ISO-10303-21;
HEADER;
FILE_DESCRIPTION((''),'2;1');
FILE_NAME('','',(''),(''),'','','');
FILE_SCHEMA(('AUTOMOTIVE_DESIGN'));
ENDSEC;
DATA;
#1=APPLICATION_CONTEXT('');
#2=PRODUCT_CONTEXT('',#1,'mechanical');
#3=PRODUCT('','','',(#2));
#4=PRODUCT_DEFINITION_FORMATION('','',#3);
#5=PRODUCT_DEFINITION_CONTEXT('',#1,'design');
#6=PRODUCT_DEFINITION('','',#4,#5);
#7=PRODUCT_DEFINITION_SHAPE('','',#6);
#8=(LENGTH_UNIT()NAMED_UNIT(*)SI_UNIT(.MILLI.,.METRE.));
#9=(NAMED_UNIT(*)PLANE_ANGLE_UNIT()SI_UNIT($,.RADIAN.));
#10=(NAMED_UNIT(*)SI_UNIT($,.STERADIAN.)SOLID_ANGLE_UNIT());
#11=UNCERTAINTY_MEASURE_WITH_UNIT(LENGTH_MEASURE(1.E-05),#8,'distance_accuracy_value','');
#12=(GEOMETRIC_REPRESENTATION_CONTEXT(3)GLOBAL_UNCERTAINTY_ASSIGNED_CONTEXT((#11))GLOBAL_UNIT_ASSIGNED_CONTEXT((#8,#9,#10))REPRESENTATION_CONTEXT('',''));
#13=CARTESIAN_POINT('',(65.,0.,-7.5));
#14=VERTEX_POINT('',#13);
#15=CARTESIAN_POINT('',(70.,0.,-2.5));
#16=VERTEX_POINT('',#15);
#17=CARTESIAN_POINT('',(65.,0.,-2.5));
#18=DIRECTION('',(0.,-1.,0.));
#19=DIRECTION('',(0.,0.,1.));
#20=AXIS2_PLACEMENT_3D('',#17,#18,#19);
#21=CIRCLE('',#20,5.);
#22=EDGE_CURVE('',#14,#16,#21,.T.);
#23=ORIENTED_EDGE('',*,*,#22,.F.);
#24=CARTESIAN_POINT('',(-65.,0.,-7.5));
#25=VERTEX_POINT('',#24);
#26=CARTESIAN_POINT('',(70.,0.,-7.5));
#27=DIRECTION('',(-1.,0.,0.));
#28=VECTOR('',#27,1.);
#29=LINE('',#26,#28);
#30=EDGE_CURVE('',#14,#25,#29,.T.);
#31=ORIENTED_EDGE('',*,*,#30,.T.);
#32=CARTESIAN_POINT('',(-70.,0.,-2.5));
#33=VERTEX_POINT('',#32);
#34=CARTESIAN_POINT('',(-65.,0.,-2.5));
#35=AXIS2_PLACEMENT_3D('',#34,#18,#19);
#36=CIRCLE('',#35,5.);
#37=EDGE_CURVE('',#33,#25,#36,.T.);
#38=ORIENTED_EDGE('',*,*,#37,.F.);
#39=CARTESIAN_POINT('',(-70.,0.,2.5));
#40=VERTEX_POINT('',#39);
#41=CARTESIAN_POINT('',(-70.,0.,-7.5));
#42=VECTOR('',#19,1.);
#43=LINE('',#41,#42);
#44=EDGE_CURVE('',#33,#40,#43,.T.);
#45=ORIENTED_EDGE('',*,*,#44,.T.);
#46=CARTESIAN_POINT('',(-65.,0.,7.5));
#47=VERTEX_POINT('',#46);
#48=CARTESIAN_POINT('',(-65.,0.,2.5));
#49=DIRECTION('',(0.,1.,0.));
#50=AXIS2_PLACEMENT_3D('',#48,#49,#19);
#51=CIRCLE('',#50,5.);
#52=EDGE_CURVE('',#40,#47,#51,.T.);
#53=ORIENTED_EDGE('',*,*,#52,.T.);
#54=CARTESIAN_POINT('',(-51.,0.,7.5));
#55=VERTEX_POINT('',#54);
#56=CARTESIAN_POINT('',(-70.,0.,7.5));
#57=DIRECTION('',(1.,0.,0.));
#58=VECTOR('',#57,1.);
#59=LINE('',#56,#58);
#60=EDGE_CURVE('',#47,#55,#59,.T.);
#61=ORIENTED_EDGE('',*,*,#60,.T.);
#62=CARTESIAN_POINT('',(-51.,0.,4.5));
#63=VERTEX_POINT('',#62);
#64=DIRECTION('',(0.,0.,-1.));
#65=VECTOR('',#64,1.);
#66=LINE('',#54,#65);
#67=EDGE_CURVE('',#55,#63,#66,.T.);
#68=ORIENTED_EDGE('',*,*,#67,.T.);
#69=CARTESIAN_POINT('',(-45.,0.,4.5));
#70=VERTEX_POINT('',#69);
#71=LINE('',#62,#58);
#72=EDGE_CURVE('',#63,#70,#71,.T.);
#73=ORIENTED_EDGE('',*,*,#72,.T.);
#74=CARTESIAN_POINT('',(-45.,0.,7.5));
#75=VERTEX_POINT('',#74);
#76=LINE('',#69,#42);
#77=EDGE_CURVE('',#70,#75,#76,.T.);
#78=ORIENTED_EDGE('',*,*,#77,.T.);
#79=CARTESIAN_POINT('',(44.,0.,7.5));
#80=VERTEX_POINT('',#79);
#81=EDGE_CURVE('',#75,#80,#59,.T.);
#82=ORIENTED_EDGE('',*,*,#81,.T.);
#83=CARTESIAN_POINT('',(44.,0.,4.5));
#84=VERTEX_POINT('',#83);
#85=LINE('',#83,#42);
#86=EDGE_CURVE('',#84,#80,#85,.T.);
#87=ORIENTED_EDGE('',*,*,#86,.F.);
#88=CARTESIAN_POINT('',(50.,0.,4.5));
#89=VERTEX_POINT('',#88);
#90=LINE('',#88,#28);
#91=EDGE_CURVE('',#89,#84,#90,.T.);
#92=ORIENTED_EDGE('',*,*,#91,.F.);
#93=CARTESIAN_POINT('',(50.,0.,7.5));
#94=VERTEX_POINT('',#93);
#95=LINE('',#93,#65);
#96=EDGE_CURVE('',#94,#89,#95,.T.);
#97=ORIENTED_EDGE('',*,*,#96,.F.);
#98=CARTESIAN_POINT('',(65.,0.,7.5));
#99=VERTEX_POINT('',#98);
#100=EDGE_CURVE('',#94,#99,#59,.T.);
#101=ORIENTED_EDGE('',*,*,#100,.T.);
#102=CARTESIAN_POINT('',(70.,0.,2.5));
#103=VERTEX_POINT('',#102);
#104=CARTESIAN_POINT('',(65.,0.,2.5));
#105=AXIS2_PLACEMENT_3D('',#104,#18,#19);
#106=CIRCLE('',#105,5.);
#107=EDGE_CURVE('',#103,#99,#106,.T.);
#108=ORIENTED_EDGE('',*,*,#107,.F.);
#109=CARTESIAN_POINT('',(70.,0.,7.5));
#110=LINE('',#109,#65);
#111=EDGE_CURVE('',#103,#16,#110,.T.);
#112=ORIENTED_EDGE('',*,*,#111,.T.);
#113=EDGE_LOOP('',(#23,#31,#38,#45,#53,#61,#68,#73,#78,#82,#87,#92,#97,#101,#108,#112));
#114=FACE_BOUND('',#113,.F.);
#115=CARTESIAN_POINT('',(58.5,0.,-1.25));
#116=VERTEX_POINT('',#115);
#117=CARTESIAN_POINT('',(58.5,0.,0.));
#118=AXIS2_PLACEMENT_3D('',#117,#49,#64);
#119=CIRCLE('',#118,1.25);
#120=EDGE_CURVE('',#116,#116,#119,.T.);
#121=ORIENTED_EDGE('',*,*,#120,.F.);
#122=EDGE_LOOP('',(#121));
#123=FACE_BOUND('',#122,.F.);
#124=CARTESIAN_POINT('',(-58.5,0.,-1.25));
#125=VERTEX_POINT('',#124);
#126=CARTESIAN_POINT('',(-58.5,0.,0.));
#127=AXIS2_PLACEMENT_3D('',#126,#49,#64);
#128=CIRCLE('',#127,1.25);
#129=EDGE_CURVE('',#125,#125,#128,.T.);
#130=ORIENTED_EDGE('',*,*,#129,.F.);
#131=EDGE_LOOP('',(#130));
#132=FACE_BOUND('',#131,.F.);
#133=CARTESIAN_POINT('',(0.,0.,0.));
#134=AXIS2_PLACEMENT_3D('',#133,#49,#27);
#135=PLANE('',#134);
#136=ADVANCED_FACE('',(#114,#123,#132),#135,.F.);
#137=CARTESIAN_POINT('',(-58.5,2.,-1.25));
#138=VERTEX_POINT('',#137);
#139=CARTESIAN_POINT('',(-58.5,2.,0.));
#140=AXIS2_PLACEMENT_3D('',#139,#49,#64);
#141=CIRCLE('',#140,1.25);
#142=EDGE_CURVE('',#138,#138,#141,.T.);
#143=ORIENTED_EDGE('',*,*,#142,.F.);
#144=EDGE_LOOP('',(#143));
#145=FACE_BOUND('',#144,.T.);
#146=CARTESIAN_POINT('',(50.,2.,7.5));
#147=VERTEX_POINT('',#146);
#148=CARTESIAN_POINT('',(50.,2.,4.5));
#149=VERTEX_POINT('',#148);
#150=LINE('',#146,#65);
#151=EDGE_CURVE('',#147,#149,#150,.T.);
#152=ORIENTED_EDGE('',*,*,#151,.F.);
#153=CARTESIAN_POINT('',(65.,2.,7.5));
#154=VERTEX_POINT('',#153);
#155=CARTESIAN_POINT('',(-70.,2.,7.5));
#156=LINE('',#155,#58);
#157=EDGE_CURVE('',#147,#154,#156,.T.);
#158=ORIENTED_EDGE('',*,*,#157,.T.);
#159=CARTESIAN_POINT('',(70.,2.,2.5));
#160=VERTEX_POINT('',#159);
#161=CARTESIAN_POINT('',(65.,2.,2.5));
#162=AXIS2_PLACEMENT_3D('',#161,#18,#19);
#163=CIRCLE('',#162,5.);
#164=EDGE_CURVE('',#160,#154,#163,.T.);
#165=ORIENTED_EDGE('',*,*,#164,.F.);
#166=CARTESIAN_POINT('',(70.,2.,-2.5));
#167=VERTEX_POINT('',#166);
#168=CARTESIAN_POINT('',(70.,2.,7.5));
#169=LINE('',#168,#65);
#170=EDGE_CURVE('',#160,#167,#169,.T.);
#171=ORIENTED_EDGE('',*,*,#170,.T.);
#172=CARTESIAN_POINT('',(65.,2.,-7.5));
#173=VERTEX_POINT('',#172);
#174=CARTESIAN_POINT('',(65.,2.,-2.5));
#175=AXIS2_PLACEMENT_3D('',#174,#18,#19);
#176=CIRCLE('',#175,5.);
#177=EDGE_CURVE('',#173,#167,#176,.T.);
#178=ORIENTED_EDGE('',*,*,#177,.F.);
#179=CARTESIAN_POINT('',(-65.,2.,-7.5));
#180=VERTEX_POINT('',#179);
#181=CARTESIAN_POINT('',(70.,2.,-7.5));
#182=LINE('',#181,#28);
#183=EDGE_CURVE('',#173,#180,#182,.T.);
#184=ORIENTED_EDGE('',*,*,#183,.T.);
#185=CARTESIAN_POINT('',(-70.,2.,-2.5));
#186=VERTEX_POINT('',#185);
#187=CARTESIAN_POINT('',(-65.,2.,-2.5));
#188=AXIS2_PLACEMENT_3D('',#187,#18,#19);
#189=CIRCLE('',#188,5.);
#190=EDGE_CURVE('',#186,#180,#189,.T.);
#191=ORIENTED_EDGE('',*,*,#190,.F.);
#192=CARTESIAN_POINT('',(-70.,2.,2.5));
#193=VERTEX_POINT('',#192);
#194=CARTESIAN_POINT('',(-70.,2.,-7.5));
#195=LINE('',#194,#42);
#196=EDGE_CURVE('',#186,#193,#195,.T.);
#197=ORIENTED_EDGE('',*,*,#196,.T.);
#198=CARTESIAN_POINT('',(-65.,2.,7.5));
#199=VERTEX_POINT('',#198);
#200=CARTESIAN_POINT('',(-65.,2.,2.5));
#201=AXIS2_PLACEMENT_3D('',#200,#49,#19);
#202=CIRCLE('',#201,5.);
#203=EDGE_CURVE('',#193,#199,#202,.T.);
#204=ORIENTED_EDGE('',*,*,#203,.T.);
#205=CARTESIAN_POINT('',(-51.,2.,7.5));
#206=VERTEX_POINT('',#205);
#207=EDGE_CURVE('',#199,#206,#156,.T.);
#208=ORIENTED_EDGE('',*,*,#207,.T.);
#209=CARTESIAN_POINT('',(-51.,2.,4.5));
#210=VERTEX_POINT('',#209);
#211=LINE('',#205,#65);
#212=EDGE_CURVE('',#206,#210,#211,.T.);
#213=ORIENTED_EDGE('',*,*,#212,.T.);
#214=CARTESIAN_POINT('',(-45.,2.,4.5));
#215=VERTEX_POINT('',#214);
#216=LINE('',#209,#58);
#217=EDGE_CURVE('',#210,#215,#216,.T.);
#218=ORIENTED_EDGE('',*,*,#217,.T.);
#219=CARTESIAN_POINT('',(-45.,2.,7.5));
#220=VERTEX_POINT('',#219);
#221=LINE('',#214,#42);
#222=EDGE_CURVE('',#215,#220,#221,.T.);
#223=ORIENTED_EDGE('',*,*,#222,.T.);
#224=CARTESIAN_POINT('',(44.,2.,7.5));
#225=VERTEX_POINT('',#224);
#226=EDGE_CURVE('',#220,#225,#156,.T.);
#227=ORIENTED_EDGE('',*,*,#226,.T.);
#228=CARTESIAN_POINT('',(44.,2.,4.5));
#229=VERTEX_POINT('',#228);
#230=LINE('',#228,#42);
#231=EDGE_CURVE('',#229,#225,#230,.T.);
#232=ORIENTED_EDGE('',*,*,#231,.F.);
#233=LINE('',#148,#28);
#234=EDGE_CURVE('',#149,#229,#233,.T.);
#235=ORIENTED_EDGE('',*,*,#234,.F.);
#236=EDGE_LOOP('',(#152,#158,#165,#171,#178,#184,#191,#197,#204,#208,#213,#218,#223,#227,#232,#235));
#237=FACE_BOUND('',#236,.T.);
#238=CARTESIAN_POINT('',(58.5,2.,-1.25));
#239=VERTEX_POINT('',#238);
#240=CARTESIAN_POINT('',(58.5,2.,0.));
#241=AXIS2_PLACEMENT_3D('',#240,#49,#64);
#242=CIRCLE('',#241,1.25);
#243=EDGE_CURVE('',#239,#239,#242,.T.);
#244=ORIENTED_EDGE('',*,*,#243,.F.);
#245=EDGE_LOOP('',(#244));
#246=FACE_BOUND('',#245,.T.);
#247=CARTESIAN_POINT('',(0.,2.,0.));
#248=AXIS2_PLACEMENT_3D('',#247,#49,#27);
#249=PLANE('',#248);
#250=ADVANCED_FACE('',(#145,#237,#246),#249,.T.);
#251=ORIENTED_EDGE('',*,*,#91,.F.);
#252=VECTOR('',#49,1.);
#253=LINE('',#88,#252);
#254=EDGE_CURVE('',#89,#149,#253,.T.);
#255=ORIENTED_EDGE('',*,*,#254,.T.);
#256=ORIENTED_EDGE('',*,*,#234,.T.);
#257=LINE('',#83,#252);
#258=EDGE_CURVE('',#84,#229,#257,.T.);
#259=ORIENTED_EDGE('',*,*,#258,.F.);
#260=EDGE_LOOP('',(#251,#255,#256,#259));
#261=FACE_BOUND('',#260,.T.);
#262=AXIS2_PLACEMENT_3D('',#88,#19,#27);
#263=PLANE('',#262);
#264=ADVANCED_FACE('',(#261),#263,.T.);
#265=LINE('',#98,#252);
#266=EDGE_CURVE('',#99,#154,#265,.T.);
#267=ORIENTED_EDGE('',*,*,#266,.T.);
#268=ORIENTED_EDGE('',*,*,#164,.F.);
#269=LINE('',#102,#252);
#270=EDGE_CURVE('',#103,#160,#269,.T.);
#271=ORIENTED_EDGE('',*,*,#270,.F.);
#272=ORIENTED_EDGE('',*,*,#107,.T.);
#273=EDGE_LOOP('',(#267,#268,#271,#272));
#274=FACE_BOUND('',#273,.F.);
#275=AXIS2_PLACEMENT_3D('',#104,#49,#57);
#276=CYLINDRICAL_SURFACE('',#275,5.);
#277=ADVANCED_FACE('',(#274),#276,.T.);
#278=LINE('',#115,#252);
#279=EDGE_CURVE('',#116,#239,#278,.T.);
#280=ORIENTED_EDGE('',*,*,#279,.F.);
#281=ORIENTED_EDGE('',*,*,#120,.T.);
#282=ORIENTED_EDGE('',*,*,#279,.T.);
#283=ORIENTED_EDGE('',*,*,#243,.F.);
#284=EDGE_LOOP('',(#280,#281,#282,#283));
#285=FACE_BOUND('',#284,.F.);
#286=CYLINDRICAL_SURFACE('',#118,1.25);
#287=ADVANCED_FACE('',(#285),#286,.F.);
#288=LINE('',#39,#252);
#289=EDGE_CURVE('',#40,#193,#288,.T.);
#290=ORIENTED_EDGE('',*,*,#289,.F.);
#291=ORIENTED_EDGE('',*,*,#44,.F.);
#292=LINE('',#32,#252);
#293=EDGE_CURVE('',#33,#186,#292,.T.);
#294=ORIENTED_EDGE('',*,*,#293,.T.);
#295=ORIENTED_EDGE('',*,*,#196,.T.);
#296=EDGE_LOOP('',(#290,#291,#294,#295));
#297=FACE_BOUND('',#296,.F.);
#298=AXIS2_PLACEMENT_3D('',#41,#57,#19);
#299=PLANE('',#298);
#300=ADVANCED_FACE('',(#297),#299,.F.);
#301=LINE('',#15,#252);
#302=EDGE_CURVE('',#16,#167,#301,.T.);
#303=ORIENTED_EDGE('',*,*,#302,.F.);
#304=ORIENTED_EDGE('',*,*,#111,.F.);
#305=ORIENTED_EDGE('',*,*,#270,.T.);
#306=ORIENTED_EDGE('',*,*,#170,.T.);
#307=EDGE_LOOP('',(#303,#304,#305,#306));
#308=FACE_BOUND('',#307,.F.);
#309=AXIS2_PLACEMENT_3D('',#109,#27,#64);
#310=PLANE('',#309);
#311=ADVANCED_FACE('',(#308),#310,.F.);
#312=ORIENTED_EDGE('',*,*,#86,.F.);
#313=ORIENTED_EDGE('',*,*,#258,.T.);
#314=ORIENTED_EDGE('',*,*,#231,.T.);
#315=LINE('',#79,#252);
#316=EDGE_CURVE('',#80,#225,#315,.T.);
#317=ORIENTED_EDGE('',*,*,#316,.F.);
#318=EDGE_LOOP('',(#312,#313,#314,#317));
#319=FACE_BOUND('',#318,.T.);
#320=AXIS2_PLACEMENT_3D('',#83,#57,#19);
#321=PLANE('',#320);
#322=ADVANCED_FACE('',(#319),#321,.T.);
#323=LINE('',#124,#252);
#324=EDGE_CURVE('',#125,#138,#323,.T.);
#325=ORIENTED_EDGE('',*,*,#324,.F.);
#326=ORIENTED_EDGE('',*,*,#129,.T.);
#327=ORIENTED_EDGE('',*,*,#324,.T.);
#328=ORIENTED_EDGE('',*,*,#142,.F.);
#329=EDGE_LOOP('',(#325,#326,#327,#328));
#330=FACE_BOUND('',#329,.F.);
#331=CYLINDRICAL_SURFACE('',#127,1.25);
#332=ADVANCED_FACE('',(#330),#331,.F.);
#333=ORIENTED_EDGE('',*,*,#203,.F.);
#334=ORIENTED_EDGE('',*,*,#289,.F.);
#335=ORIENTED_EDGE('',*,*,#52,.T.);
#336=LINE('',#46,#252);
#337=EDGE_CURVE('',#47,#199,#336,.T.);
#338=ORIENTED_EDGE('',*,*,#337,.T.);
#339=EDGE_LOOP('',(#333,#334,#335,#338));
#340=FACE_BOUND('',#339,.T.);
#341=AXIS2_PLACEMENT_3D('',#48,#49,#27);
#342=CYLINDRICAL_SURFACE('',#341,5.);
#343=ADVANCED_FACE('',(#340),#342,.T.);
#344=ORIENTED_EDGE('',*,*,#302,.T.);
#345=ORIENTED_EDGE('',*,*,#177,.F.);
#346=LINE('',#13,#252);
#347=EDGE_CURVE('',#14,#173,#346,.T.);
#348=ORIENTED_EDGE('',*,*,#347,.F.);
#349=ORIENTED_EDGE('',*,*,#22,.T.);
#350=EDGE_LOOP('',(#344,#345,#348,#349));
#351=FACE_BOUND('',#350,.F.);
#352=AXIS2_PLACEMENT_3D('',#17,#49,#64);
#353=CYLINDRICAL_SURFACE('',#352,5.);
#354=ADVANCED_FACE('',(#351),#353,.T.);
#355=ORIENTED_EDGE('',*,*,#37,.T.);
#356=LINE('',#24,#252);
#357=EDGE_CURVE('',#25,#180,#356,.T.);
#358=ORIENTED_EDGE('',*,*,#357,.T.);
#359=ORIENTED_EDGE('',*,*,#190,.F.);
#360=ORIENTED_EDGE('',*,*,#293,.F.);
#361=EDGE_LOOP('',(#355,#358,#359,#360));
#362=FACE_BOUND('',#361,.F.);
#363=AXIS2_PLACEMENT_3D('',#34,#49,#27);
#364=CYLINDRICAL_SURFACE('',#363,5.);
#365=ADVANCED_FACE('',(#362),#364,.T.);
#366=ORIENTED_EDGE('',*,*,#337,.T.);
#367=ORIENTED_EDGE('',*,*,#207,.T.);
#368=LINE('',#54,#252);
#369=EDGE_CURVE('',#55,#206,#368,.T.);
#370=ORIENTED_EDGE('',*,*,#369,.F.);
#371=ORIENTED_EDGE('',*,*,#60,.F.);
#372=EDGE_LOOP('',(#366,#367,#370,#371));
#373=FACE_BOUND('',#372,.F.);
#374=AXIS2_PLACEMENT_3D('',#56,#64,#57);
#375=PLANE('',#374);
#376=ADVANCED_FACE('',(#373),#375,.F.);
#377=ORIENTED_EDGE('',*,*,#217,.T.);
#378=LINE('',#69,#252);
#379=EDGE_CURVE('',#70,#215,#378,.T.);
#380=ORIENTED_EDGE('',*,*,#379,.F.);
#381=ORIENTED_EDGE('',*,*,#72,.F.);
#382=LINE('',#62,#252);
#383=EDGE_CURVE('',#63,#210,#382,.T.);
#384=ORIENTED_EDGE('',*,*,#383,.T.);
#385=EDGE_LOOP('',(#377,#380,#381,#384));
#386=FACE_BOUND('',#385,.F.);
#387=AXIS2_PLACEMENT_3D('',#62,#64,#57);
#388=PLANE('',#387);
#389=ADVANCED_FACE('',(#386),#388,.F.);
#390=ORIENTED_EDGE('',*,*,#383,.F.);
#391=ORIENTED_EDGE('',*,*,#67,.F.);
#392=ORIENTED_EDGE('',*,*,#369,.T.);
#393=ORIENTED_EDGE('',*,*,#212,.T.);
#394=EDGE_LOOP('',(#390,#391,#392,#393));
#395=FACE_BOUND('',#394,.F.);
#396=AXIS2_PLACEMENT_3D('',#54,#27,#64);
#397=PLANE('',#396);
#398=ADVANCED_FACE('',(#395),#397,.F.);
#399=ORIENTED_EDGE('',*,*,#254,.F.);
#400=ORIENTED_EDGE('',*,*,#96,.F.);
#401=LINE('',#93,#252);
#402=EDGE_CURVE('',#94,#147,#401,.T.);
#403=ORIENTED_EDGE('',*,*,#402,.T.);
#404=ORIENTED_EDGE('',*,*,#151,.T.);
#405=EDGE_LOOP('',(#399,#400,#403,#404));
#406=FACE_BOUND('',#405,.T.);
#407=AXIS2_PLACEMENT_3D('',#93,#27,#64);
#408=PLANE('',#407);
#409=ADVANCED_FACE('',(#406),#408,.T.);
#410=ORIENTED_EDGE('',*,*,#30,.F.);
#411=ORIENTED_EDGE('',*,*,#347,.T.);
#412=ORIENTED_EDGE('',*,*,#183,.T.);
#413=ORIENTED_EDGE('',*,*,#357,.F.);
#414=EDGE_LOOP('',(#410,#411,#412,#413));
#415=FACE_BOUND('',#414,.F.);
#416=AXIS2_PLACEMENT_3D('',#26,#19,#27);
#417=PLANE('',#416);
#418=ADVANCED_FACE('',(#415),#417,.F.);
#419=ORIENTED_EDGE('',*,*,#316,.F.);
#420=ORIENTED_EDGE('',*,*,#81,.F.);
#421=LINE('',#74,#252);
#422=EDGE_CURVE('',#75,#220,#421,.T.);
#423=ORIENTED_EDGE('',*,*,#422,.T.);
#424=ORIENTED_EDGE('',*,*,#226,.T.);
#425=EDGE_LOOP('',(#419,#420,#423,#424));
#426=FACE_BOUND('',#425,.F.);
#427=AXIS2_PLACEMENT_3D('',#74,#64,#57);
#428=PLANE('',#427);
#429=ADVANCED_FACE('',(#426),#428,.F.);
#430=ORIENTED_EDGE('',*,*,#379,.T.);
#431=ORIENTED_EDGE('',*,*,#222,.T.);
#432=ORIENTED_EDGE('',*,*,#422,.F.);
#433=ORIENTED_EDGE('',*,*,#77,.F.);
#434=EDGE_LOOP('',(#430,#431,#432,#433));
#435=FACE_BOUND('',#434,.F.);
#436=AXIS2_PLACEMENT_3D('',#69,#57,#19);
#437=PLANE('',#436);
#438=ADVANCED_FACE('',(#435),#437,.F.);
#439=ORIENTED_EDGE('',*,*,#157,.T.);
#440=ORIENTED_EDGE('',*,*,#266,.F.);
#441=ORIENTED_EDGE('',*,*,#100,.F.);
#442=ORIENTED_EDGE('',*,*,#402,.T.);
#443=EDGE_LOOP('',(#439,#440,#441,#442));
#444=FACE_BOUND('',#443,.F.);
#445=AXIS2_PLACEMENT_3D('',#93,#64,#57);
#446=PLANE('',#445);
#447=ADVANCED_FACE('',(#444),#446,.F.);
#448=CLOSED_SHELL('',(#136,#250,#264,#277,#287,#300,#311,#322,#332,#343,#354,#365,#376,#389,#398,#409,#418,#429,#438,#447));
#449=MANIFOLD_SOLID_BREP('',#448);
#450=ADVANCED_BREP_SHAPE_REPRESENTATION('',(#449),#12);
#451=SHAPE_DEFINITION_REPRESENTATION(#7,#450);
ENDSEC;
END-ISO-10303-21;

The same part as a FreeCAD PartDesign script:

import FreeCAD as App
import Part
import Sketcher


def edges_at(feature, points):
    """Names of the edges that pass closest to the given points."""
    edges = feature.Shape.Edges
    near = lambda p: min(range(len(edges)), key=lambda i: edges[i].distToShape(Part.Vertex(*p))[0])
    return sorted({f"Edge{near(p) + 1}" for p in points})


def add_polygon(sketch, points):
    """Adds a closed chain of lines whose ends are joined by coincident constraints."""
    first, n = sketch.GeometryCount, len(points)
    for a, b in zip(points, points[1:] + points[:1]):
        sketch.addGeometry(Part.LineSegment(App.Vector(*a, 0), App.Vector(*b, 0)), False)
    for i in range(n):
        sketch.addConstraint(Sketcher.Constraint("Coincident", first + i, 2, first + (i + 1) % n, 1))

doc = App.newDocument("Part")
body = doc.addObject("PartDesign::Body", "Body")

# Sketch on XZ plane
sketch1 = doc.addObject("Sketcher::SketchObject", "Sketch")
body.addObject(sketch1)
sketch1.AttachmentSupport = (doc.XZ_Plane, [""])
sketch1.MapMode = "FlatFace"
add_polygon(sketch1, [(-70, -7.5), (-70, 7.5), (-51, 7.5), (-51, 4.5), (-45, 4.5), (-45, 7.5), (44, 7.5), (44, 4.5), (50, 4.5), (50, 7.5), (70, 7.5), (70, -7.5)])  # lines 0-11
sketch1.addConstraint([
    Sketcher.Constraint("Vertical", 0),
    Sketcher.Constraint("Horizontal", 1),
    Sketcher.Constraint("Vertical", 2),
    Sketcher.Constraint("Horizontal", 3),
    Sketcher.Constraint("Vertical", 4),
    Sketcher.Constraint("Horizontal", 5),
    Sketcher.Constraint("Vertical", 6),
    Sketcher.Constraint("Horizontal", 7),
    Sketcher.Constraint("Vertical", 8),
    Sketcher.Constraint("Horizontal", 9),
    Sketcher.Constraint("Vertical", 10),
    Sketcher.Constraint("Horizontal", 11),
    Sketcher.Constraint("Symmetric", 0, 2, 10, 2, -1, 1),
    Sketcher.Constraint("Horizontal", 1, 2, 4, 2),
    Sketcher.Constraint("Horizontal", 3, 2, 6, 2),
    Sketcher.Constraint("Horizontal", 5, 2, 8, 2),
    Sketcher.Constraint("Equal", 3, 7),
    Sketcher.Constraint("DistanceX", 3, 1, 3, 2, 6.0),
    Sketcher.Constraint("DistanceX", 11, 2, 11, 1, 140.0),
    Sketcher.Constraint("DistanceY", 0, 1, 0, 2, 15.0),
    Sketcher.Constraint("DistanceY", 2, 2, 2, 1, 3.0),
    Sketcher.Constraint("DistanceX", 2, 2, 7, 2, 101.0),
    Sketcher.Constraint("DistanceX", 1, 1, 1, 2, 19.0),
])
pad1 = doc.addObject("PartDesign::Pad", "Pad")
body.addObject(pad1)
pad1.Profile = sketch1
pad1.Length = 2
pad1.Reversed = True

# Sketch on XZ plane
sketch2 = doc.addObject("Sketcher::SketchObject", "Sketch001")
body.addObject(sketch2)
sketch2.AttachmentSupport = (doc.XZ_Plane, [""])
sketch2.MapMode = "FlatFace"
sketch2.addGeometry([
    Part.Circle(App.Vector(-58.5, 0, 0), App.Vector(0, 0, 1), 1.2),
    Part.Circle(App.Vector(58.5, 0, 0), App.Vector(0, 0, 1), 1.2),
], False)
sketch2.addConstraint([
    Sketcher.Constraint("Equal", 0, 1),
    Sketcher.Constraint("Symmetric", 0, 3, 1, 3, -1, 1),
    Sketcher.Constraint("PointOnObject", 0, 3, -1),
    Sketcher.Constraint("Diameter", 0, 2.5),
    Sketcher.Constraint("DistanceX", 0, 3, 1, 3, 117.0),
])
doc.recompute()
hole = doc.addObject("PartDesign::Hole", "Hole")
body.addObject(hole)
hole.Profile = sketch2
hole.ThreadType = "None"
hole.Diameter = 2.5
hole.DepthType = "Dimension"
hole.Depth = 6.5
hole.DrillPoint = "Flat"
doc.recompute()

fillet = doc.addObject("PartDesign::Fillet", "Fillet")
body.addObject(fillet)
fillet.Base = (hole, edges_at(hole, [
    (-70, 1, 7.5),
    (-70, 1, -7.5),
    (70, 1, 7.5),
    (70, 1, -7.5),
]))
fillet.Radius = 5

doc.recompute()
